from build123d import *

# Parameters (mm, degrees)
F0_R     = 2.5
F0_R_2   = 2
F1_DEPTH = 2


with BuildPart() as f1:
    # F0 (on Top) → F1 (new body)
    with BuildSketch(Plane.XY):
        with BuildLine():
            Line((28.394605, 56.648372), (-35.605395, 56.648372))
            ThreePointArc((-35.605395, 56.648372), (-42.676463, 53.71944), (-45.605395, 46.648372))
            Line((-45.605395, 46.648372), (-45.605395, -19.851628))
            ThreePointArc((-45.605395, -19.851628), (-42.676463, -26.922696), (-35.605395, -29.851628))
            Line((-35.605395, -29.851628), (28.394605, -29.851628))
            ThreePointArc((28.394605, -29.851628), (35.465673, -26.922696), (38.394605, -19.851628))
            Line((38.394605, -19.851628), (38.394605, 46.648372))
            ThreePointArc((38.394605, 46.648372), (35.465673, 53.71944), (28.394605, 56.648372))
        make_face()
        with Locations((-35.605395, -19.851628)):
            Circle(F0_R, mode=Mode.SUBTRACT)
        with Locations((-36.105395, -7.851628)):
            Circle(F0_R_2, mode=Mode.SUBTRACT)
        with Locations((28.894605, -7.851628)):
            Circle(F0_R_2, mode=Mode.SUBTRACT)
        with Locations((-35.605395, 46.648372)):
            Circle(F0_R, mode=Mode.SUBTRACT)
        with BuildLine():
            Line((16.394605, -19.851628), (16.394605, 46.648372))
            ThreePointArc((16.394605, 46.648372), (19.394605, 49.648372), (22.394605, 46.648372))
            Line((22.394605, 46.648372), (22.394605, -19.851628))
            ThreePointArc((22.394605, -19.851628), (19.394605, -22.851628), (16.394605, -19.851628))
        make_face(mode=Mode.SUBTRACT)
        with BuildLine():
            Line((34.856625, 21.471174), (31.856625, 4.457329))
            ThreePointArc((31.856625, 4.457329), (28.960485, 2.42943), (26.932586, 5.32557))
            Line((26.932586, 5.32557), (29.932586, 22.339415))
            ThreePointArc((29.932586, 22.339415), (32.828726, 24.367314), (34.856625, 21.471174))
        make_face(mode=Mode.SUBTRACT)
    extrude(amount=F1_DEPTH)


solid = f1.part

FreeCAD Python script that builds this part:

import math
import FreeCAD as App
import Part
import Sketcher

V = App.Vector
Q = App.Units.Quantity

doc = App.newDocument("Part")
body = doc.addObject("PartDesign::Body", "Body")

sketch1 = doc.addObject("Sketcher::SketchObject", "Sketch")
body.addObject(sketch1)
sketch1.AttachmentSupport = (doc.XY_Plane, [""])
sketch1.MapMode = "FlatFace"
sketch1.addGeometry(Part.LineSegment(V(28.394605, 56.648372, 0), V(-35.605395, 56.648372, 0)), False)
sketch1.addGeometry(Part.ArcOfCircle(Part.Circle(V(-35.605396, 46.648373, 0), V(0, 0, 1), 9.999999), math.radians(89.999996), math.radians(180.000004)), False)
sketch1.addGeometry(Part.LineSegment(V(-45.605395, 46.648372, 0), V(-45.605395, -19.851628, 0)), False)
sketch1.addGeometry(Part.ArcOfCircle(Part.Circle(V(-35.605396, -19.851629, 0), V(0, 0, 1), 9.999999), math.radians(179.999996), math.radians(270.000004)), False)
sketch1.addGeometry(Part.LineSegment(V(-35.605395, -29.851628, 0), V(28.394605, -29.851628, 0)), False)
sketch1.addGeometry(Part.ArcOfCircle(Part.Circle(V(28.394606, -19.851629, 0), V(0, 0, 1), 9.999999), math.radians(-90.000004), math.radians(0.000004)), False)
sketch1.addGeometry(Part.LineSegment(V(38.394605, -19.851628, 0), V(38.394605, 46.648372, 0)), False)
sketch1.addGeometry(Part.ArcOfCircle(Part.Circle(V(28.394606, 46.648373, 0), V(0, 0, 1), 9.999999), math.radians(-0.000004), math.radians(90.000004)), False)
sketch1.addGeometry(Part.Circle(V(-35.605395, -19.851628, 0), V(0, 0, 1), 2.5), False)
sketch1.addGeometry(Part.Circle(V(-36.105395, -7.851628, 0), V(0, 0, 1), 2), False)
sketch1.addGeometry(Part.Circle(V(28.894605, -7.851628, 0), V(0, 0, 1), 2), False)
sketch1.addGeometry(Part.Circle(V(-35.605395, 46.648372, 0), V(0, 0, 1), 2.5), False)
sketch1.addGeometry(Part.ArcOfCircle(Part.Circle(V(19.394605, -19.851628, 0), V(0, 0, 1), 3), math.radians(180), math.radians(360)), False)
sketch1.addGeometry(Part.LineSegment(V(16.394605, -19.851628, 0), V(16.394605, 46.648372, 0)), False)
sketch1.addGeometry(Part.ArcOfCircle(Part.Circle(V(19.394605, 46.648372, 0), V(0, 0, 1), 3), math.radians(0), math.radians(180)), False)
sketch1.addGeometry(Part.LineSegment(V(22.394605, 46.648372, 0), V(22.394605, -19.851628, 0)), False)
sketch1.addGeometry(Part.ArcOfCircle(Part.Circle(V(32.394605, 21.905295, 0), V(0, 0, 1), 2.5), math.radians(-10.000001), math.radians(169.999999)), False)
sketch1.addGeometry(Part.LineSegment(V(34.856625, 21.471174, 0), V(31.856625, 4.457329, 0)), False)
sketch1.addGeometry(Part.ArcOfCircle(Part.Circle(V(29.394606, 4.89145, 0), V(0, 0, 1), 2.5), math.radians(169.999999), math.radians(349.999999)), False)
sketch1.addGeometry(Part.LineSegment(V(26.932586, 5.32557, 0), V(29.932586, 22.339415, 0)), False)
sketch1.addConstraint(Sketcher.Constraint("Tangent", 0, 2, 1, 1))
sketch1.addConstraint(Sketcher.Constraint("Tangent", 1, 2, 2, 1))
sketch1.addConstraint(Sketcher.Constraint("Tangent", 2, 2, 3, 1))
sketch1.addConstraint(Sketcher.Constraint("Tangent", 3, 2, 4, 1))
sketch1.addConstraint(Sketcher.Constraint("Tangent", 4, 2, 5, 1))
sketch1.addConstraint(Sketcher.Constraint("Tangent", 5, 2, 6, 1))
sketch1.addConstraint(Sketcher.Constraint("Tangent", 6, 2, 7, 1))
sketch1.addConstraint(Sketcher.Constraint("Tangent", 7, 2, 0, 1))
sketch1.addConstraint(Sketcher.Constraint("Tangent", 12, 1, 13, 1))
sketch1.addConstraint(Sketcher.Constraint("Tangent", 13, 2, 14, 2))
sketch1.addConstraint(Sketcher.Constraint("Tangent", 14, 1, 15, 1))
sketch1.addConstraint(Sketcher.Constraint("Tangent", 15, 2, 12, 2))
sketch1.addConstraint(Sketcher.Constraint("Tangent", 16, 1, 17, 1))
sketch1.addConstraint(Sketcher.Constraint("Tangent", 17, 2, 18, 2))
sketch1.addConstraint(Sketcher.Constraint("Tangent", 18, 1, 19, 1))
sketch1.addConstraint(Sketcher.Constraint("Tangent", 19, 2, 16, 2))
sketch1.addConstraint(Sketcher.Constraint("Horizontal", 0))
sketch1.addConstraint(Sketcher.Constraint("Vertical", 2))
sketch1.addConstraint(Sketcher.Constraint("Horizontal", 4))
sketch1.addConstraint(Sketcher.Constraint("Vertical", 6))
sketch1.addConstraint(Sketcher.Constraint("Vertical", 13))
sketch1.addConstraint(Sketcher.Constraint("Vertical", 15))
sketch1.addConstraint(Sketcher.Constraint("Coincident", 8, 3, 3, 3))
sketch1.addConstraint(Sketcher.Constraint("Coincident", 11, 3, 1, 3))
sketch1.addConstraint(Sketcher.Constraint("Equal", 1, 3))
sketch1.addConstraint(Sketcher.Constraint("Equal", 3, 5))
sketch1.addConstraint(Sketcher.Constraint("Equal", 5, 7))
sketch1.addConstraint(Sketcher.Constraint("Equal", 9, 10))
sketch1.addConstraint(Sketcher.Constraint("Equal", 8, 11))
sketch1.addConstraint(Sketcher.Constraint("Equal", 11, 16))
sketch1.addConstraint(Sketcher.Constraint("Equal", 16, 18))
sketch1.addConstraint(Sketcher.Constraint("Horizontal", 9, 3, 10, 3))
sketch1.addConstraint(Sketcher.Constraint("Horizontal", 8, 3, 12, 3))
sketch1.addConstraint(Sketcher.Constraint("Horizontal", 11, 3, 14, 3))
sketch1.addConstraint(Sketcher.Constraint("Diameter", 8, Q("5 mm")))
sketch1.addConstraint(Sketcher.Constraint("Diameter", 9, Q("4 mm")))
sketch1.addConstraint(Sketcher.Constraint("Radius", 1, Q("9.999999 mm")))
sketch1.addConstraint(Sketcher.Constraint("Radius", 12, Q("3 mm")))
sketch1.addConstraint(Sketcher.Constraint("DistanceX", 0, 2, 0, 1, Q("64 mm")))
sketch1.addConstraint(Sketcher.Constraint("Angle", 17, Q("-100 deg")))
sketch1.addConstraint(Sketcher.Constraint("DistanceY", 2, 2, 2, 1, Q("66.5 mm")))
sketch1.addConstraint(Sketcher.Constraint("DistanceY", 8, 3, 9, 3, Q("12 mm")))
sketch1.addConstraint(Sketcher.Constraint("DistanceX", 9, 3, 10, 3, Q("65 mm")))
sketch1.addConstraint(Sketcher.Constraint("DistanceX", 12, 3, 5, 3, Q("9.000001 mm")))
sketch1.addConstraint(Sketcher.Constraint("DistanceX", 7, 3, 16, 3, Q("4 mm")))
sketch1.addConstraint(Sketcher.Constraint("DistanceX", 18, 3, 16, 3, Q("3 mm")))
sketch1.addConstraint(Sketcher.Constraint("DistanceX", 9, 3, 8, 3, Q("0.5 mm")))
sketch1.addConstraint(Sketcher.Constraint("DistanceY", 16, 1, 7, 3, Q("25.177199 mm")))
sketch1.addConstraint(Sketcher.Constraint("DistanceY", 3, 3, -1, 1, Q("19.851629 mm")))
sketch1.addConstraint(Sketcher.Constraint("DistanceX", 1, 3, -1, 1, Q("35.605396 mm")))
pad1 = doc.addObject("PartDesign::Pad", "Pad")
body.addObject(pad1)
pad1.Profile = sketch1
pad1.Length = 2

doc.recompute()
